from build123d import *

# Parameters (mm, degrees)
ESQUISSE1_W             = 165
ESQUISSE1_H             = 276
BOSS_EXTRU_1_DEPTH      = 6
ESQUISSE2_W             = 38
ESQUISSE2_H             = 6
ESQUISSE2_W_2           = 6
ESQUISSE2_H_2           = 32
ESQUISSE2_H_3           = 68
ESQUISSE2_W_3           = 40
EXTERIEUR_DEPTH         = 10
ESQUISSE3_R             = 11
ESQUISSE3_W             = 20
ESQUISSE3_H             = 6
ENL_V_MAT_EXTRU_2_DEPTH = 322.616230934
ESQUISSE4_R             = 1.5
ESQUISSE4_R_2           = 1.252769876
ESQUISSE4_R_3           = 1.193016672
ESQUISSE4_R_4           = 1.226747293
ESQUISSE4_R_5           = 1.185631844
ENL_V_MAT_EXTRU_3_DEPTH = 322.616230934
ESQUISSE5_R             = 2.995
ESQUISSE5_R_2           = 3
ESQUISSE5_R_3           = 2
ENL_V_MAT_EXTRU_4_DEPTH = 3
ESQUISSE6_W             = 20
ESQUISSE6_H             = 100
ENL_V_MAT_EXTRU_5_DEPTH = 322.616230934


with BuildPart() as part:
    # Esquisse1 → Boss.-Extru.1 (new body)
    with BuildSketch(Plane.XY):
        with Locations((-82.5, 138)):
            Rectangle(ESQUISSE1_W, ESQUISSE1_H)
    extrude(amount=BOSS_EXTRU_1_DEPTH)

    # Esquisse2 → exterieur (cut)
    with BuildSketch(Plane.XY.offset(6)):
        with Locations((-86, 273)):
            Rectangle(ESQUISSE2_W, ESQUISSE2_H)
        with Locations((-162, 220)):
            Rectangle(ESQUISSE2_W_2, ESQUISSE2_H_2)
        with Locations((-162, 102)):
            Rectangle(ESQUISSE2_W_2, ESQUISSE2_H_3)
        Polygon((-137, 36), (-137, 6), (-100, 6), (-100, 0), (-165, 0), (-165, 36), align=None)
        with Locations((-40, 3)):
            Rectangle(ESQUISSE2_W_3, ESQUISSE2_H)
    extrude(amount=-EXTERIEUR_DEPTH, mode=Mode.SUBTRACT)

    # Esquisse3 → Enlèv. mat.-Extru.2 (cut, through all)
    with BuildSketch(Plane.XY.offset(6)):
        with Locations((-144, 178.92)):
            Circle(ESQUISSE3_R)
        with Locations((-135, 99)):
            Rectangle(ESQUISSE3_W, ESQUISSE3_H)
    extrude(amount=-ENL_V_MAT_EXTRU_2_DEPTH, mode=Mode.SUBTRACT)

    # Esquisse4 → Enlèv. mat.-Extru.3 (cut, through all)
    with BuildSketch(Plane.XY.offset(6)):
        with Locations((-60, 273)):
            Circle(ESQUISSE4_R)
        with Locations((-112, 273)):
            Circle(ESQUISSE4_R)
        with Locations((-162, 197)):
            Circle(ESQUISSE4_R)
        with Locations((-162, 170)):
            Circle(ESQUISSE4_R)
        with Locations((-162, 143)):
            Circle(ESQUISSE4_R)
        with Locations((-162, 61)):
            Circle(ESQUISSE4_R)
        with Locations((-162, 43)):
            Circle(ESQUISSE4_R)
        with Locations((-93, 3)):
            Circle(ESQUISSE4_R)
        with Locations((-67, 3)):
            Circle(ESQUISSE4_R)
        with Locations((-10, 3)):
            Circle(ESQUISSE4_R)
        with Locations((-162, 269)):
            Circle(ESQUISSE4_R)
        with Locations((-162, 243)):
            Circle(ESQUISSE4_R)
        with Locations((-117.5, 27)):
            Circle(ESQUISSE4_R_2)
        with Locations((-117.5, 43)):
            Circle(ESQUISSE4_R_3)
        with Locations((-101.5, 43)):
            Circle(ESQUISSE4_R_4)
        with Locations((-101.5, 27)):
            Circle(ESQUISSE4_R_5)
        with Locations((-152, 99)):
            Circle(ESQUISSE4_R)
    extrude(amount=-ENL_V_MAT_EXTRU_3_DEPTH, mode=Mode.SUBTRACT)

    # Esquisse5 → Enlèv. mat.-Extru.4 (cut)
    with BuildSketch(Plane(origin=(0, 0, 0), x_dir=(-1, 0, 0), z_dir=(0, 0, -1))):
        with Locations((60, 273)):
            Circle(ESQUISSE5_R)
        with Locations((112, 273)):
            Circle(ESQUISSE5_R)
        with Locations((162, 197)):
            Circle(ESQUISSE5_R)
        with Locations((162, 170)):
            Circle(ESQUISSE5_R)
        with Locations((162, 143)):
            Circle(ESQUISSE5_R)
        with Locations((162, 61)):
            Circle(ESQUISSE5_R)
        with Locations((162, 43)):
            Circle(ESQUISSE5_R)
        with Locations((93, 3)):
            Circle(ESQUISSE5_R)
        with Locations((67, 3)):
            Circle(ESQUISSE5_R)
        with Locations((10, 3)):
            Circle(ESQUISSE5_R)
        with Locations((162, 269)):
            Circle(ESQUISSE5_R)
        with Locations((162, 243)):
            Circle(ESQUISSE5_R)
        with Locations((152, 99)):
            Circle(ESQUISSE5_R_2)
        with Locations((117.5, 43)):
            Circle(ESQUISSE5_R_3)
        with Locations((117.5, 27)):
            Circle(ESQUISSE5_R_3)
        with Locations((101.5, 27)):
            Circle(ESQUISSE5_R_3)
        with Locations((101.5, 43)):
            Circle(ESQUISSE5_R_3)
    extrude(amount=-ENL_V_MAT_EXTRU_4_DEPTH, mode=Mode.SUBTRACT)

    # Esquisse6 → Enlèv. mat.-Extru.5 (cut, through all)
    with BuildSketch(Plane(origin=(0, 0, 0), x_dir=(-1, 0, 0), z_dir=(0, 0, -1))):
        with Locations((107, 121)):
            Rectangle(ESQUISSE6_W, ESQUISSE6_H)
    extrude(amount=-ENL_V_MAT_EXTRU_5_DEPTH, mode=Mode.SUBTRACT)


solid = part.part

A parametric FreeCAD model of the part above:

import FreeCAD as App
import Part
import Sketcher

V = App.Vector

doc = App.newDocument("Part")
params = doc.addObject("Spreadsheet::Sheet", "Params")
for row, (alias, value) in enumerate([
    ("sketch1_width", "165 mm"),
    ("sketch1_height", "276 mm"),
    ("pad1_length", "6 mm"),
    ("sketch2_width", "38 mm"),
    ("sketch2_width2", "6 mm"),
    ("sketch2_width3", "28 mm"),
    ("sketch2_width4", "65 mm"),
    ("sketch2_width5", "40 mm"),
    ("pocket1_length", "10 mm"),
    ("sketch3_diameter", "22 mm"),
    ("sketch3_width", "20 mm"),
    ("sketch3_height", "6 mm"),
    ("sketch4_diameter", "3 mm"),
    ("sketch5_diameter", "6 mm"),
    ("sketch5_diameter2", "4 mm"),
    ("sketch5_diameter3", "5.99 mm"),
    ("pocket4_length", "3 mm"),
    ("sketch6_width", "20 mm"),
    ("sketch6_height", "100 mm"),
], start=1):
    params.set(f"A{row}", alias)
    params.set(f"B{row}", "=" + value)
    params.setAlias(f"B{row}", alias)

body = doc.addObject("PartDesign::Body", "Body")

sketch1 = body.newObject("Sketcher::SketchObject", "Sketch")
sketch1.AttachmentSupport = (doc.getObject("XY_Plane"), [""])
sketch1.MapMode = "FlatFace"
sketch1.addGeometry([
    Part.LineSegment(V(-165, 276, 0), V(-165, 0, 0)),
    Part.LineSegment(V(-165, 0, 0), V(0, 0, 0)),
    Part.LineSegment(V(0, 0, 0), V(0, 276, 0)),
    Part.LineSegment(V(0, 276, 0), V(-165, 276, 0)),
], False)
sketch1.addConstraint([
    Sketcher.Constraint("Coincident", 0, 2, 1, 1),
    Sketcher.Constraint("Coincident", 1, 2, 2, 1),
    Sketcher.Constraint("Coincident", 2, 2, 3, 1),
    Sketcher.Constraint("Coincident", 3, 2, 0, 1),
    Sketcher.Constraint("Vertical", 0),
    Sketcher.Constraint("Horizontal", 1),
    Sketcher.Constraint("Vertical", 2),
    Sketcher.Constraint("Horizontal", 3),
    Sketcher.Constraint("Coincident", 1, 2, -1, 1),
    Sketcher.Constraint("DistanceX", 1, 1, 1, 2, 165.0),
    Sketcher.Constraint("DistanceY", 0, 2, 0, 1, 276.0),
])
sketch1.setExpression("Constraints[9]", "Params.sketch1_width")
sketch1.setExpression("Constraints[10]", "Params.sketch1_height")
pad1 = body.newObject("PartDesign::Pad", "Pad")
pad1.Profile = sketch1
pad1.setExpression("Length", "Params.pad1_length")

sketch2 = body.newObject("Sketcher::SketchObject", "Sketch001")
sketch2.AttachmentSupport = (doc.getObject("XY_Plane"), [""])
sketch2.MapMode = "FlatFace"
sketch2.AttachmentOffset = App.Placement(V(0, 0, 6), App.Rotation())
sketch2.addGeometry([
    Part.LineSegment(V(-105, 276, 0), V(-105, 270, 0)),
    Part.LineSegment(V(-105, 270, 0), V(-67, 270, 0)),
    Part.LineSegment(V(-67, 270, 0), V(-67, 276, 0)),
    Part.LineSegment(V(-67, 276, 0), V(-105, 276, 0)),
    Part.LineSegment(V(-165, 236, 0), V(-165, 204, 0)),
    Part.LineSegment(V(-165, 204, 0), V(-159, 204, 0)),
    Part.LineSegment(V(-159, 204, 0), V(-159, 236, 0)),
    Part.LineSegment(V(-159, 236, 0), V(-165, 236, 0)),
    Part.LineSegment(V(-165, 136, 0), V(-165, 68, 0)),
    Part.LineSegment(V(-165, 68, 0), V(-159, 68, 0)),
    Part.LineSegment(V(-159, 68, 0), V(-159, 136, 0)),
    Part.LineSegment(V(-159, 136, 0), V(-165, 136, 0)),
    Part.LineSegment(V(-137, 6, 0), V(-137, 36, 0)),
    Part.LineSegment(V(-137, 36, 0), V(-165, 36, 0)),
    Part.LineSegment(V(-165, 36, 0), V(-165, 0, 0)),
    Part.LineSegment(V(-165, 0, 0), V(-100, 0, 0)),
    Part.LineSegment(V(-100, 0, 0), V(-100, 6, 0)),
    Part.LineSegment(V(-100, 6, 0), V(-137, 6, 0)),
    Part.LineSegment(V(-60, 6, 0), V(-60, 0, 0)),
    Part.LineSegment(V(-60, 0, 0), V(-20, 0, 0)),
    Part.LineSegment(V(-20, 0, 0), V(-20, 6, 0)),
    Part.LineSegment(V(-20, 6, 0), V(-60, 6, 0)),
], False)
sketch2.addConstraint([
    Sketcher.Constraint("Coincident", 0, 2, 1, 1),
    Sketcher.Constraint("Coincident", 1, 2, 2, 1),
    Sketcher.Constraint("Coincident", 2, 2, 3, 1),
    Sketcher.Constraint("Coincident", 3, 2, 0, 1),
    Sketcher.Constraint("Coincident", 4, 2, 5, 1),
    Sketcher.Constraint("Coincident", 5, 2, 6, 1),
    Sketcher.Constraint("Coincident", 6, 2, 7, 1),
    Sketcher.Constraint("Coincident", 7, 2, 4, 1),
    Sketcher.Constraint("Coincident", 8, 2, 9, 1),
    Sketcher.Constraint("Coincident", 9, 2, 10, 1),
    Sketcher.Constraint("Coincident", 10, 2, 11, 1),
    Sketcher.Constraint("Coincident", 11, 2, 8, 1),
    Sketcher.Constraint("Coincident", 12, 2, 13, 1),
    Sketcher.Constraint("Coincident", 13, 2, 14, 1),
    Sketcher.Constraint("Coincident", 14, 2, 15, 1),
    Sketcher.Constraint("Coincident", 15, 2, 16, 1),
    Sketcher.Constraint("Coincident", 16, 2, 17, 1),
    Sketcher.Constraint("Coincident", 17, 2, 12, 1),
    Sketcher.Constraint("Coincident", 18, 2, 19, 1),
    Sketcher.Constraint("Coincident", 19, 2, 20, 1),
    Sketcher.Constraint("Coincident", 20, 2, 21, 1),
    Sketcher.Constraint("Coincident", 21, 2, 18, 1),
    Sketcher.Constraint("Vertical", 0),
    Sketcher.Constraint("Horizontal", 1),
    Sketcher.Constraint("Vertical", 2),
    Sketcher.Constraint("Horizontal", 3),
    Sketcher.Constraint("Vertical", 4),
    Sketcher.Constraint("Horizontal", 5),
    Sketcher.Constraint("Vertical", 6),
    Sketcher.Constraint("Horizontal", 7),
    Sketcher.Constraint("Vertical", 8),
    Sketcher.Constraint("Horizontal", 9),
    Sketcher.Constraint("Vertical", 10),
    Sketcher.Constraint("Horizontal", 11),
    Sketcher.Constraint("Vertical", 12),
    Sketcher.Constraint("Horizontal", 13),
    Sketcher.Constraint("Vertical", 14),
    Sketcher.Constraint("Horizontal", 15),
    Sketcher.Constraint("Vertical", 16),
    Sketcher.Constraint("Horizontal", 17),
    Sketcher.Constraint("Vertical", 18),
    Sketcher.Constraint("Horizontal", 19),
    Sketcher.Constraint("Vertical", 20),
    Sketcher.Constraint("Horizontal", 21),
    Sketcher.Constraint("PointOnObject", 14, 2, -1),
    Sketcher.Constraint("PointOnObject", 18, 2, -1),
    Sketcher.Constraint("Horizontal", 17, 2, 20, 2),
    Sketcher.Constraint("Vertical", 7, 2, 8, 2),
    Sketcher.Constraint("Vertical", 6, 2, 9, 2),
    Sketcher.Constraint("Vertical", 11, 2, 13, 2),
    Sketcher.Constraint("Equal", 11, 0),
    Sketcher.Constraint("Equal", 2, 16),
    Sketcher.Constraint("DistanceX", 1, 1, 1, 2, 38.0),
    Sketcher.Constraint("DistanceX", 5, 1, 5, 2, 6.0),
    Sketcher.Constraint("DistanceX", 13, 2, 13, 1, 28.0),
    Sketcher.Constraint("DistanceX", 15, 1, 15, 2, 65.0),
    Sketcher.Constraint("DistanceX", 19, 1, 19, 2, 40.0),
    Sketcher.Constraint("DistanceY", 4, 2, 4, 1, 32.0),
    Sketcher.Constraint("DistanceY", 8, 2, 8, 1, 68.0),
    Sketcher.Constraint("DistanceY", 12, 1, 12, 2, 30.0),
    Sketcher.Constraint("DistanceX", 0, 2, -1, 1, 105.0),
    Sketcher.Constraint("DistanceY", -1, 1, 0, 2, 270.0),
    Sketcher.Constraint("DistanceX", 4, 2, -1, 1, 165.0),
    Sketcher.Constraint("DistanceY", -1, 1, 4, 2, 204.0),
    Sketcher.Constraint("DistanceY", -1, 1, 8, 2, 68.0),
    Sketcher.Constraint("DistanceX", 18, 2, -1, 1, 60.0),
])
sketch2.setExpression("Constraints[52]", "Params.sketch2_width")
sketch2.setExpression("Constraints[53]", "Params.sketch2_width2")
sketch2.setExpression("Constraints[54]", "Params.sketch2_width3")
sketch2.setExpression("Constraints[55]", "Params.sketch2_width4")
sketch2.setExpression("Constraints[56]", "Params.sketch2_width5")
pocket1 = body.newObject("PartDesign::Pocket", "Pocket")
pocket1.Profile = sketch2
pocket1.setExpression("Length", "Params.pocket1_length")

sketch3 = body.newObject("Sketcher::SketchObject", "Sketch002")
sketch3.AttachmentSupport = (doc.getObject("XY_Plane"), [""])
sketch3.MapMode = "FlatFace"
sketch3.AttachmentOffset = App.Placement(V(0, 0, 6), App.Rotation())
sketch3.addGeometry([
    Part.Circle(V(-144, 179, 0), V(0, 0, 1), 11),
    Part.LineSegment(V(-145, 102, 0), V(-145, 96, 0)),
    Part.LineSegment(V(-145, 96, 0), V(-125, 96, 0)),
    Part.LineSegment(V(-125, 96, 0), V(-125, 102, 0)),
    Part.LineSegment(V(-125, 102, 0), V(-145, 102, 0)),
], False)
sketch3.addConstraint([
    Sketcher.Constraint("Coincident", 1, 2, 2, 1),
    Sketcher.Constraint("Coincident", 2, 2, 3, 1),
    Sketcher.Constraint("Coincident", 3, 2, 4, 1),
    Sketcher.Constraint("Coincident", 4, 2, 1, 1),
    Sketcher.Constraint("Vertical", 1),
    Sketcher.Constraint("Horizontal", 2),
    Sketcher.Constraint("Vertical", 3),
    Sketcher.Constraint("Horizontal", 4),
    Sketcher.Constraint("Diameter", 0, 22.0),
    Sketcher.Constraint("DistanceX", 2, 1, 2, 2, 20.0),
    Sketcher.Constraint("DistanceY", 1, 2, 1, 1, 6.0),
    Sketcher.Constraint("DistanceX", 0, 3, -1, 1, 144.0),
    Sketcher.Constraint("DistanceX", 1, 2, -1, 1, 145.0),
    Sketcher.Constraint("DistanceY", -1, 1, 1, 2, 96.0),
    Sketcher.Constraint("DistanceY", -1, 1, 0, 3, 178.92),
])
sketch3.setExpression("Constraints[8]", "Params.sketch3_diameter")
sketch3.setExpression("Constraints[9]", "Params.sketch3_width")
sketch3.setExpression("Constraints[10]", "Params.sketch3_height")
pocket2 = body.newObject("PartDesign::Pocket", "Pocket001")
pocket2.Profile = sketch3
pocket2.Type = "ThroughAll"

sketch4 = body.newObject("Sketcher::SketchObject", "Sketch003")
sketch4.AttachmentSupport = (doc.getObject("XY_Plane"), [""])
sketch4.MapMode = "FlatFace"
sketch4.AttachmentOffset = App.Placement(V(0, 0, 6), App.Rotation())
sketch4.addGeometry([
    Part.Circle(V(-60, 273, 0), V(0, 0, 1), 1.5),
    Part.Circle(V(-112, 273, 0), V(0, 0, 1), 1.5),
    Part.Circle(V(-162, 197, 0), V(0, 0, 1), 1.5),
    Part.Circle(V(-162, 170, 0), V(0, 0, 1), 1.5),
    Part.Circle(V(-162, 143, 0), V(0, 0, 1), 1.5),
    Part.Circle(V(-162, 61, 0), V(0, 0, 1), 1.5),
    Part.Circle(V(-162, 43, 0), V(0, 0, 1), 1.5),
    Part.Circle(V(-93, 3, 0), V(0, 0, 1), 1.5),
    Part.Circle(V(-67, 3, 0), V(0, 0, 1), 1.5),
    Part.Circle(V(-10, 3, 0), V(0, 0, 1), 1.5),
    Part.Circle(V(-162, 269, 0), V(0, 0, 1), 1.5),
    Part.Circle(V(-162, 243, 0), V(0, 0, 1), 1.5),
    Part.Circle(V(-117.5, 27, 0), V(0, 0, 1), 1.3),
    Part.Circle(V(-117.5, 43, 0), V(0, 0, 1), 1.2),
    Part.Circle(V(-101.5, 43, 0), V(0, 0, 1), 1.2),
    Part.Circle(V(-101.5, 27, 0), V(0, 0, 1), 1.2),
    Part.Circle(V(-152, 99, 0), V(0, 0, 1), 1.5),
], False)
sketch4.addConstraint([
    Sketcher.Constraint("Equal", 0, 1),
    Sketcher.Constraint("Equal", 1, 2),
    Sketcher.Constraint("Equal", 2, 3),
    Sketcher.Constraint("Equal", 3, 4),
    Sketcher.Constraint("Equal", 4, 5),
    Sketcher.Constraint("Equal", 5, 6),
    Sketcher.Constraint("Equal", 6, 7),
    Sketcher.Constraint("Equal", 7, 8),
    Sketcher.Constraint("Equal", 8, 9),
    Sketcher.Constraint("Equal", 9, 10),
    Sketcher.Constraint("Equal", 10, 11),
    Sketcher.Constraint("Equal", 11, 16),
    Sketcher.Constraint("Horizontal", 0, 3, 1, 3),
    Sketcher.Constraint("Horizontal", 7, 3, 8, 3),
    Sketcher.Constraint("Horizontal", 8, 3, 9, 3),
    Sketcher.Constraint("Horizontal", 6, 3, 13, 3),
    Sketcher.Constraint("Horizontal", 13, 3, 14, 3),
    Sketcher.Constraint("Horizontal", 12, 3, 15, 3),
    Sketcher.Constraint("Vertical", 2, 3, 3, 3),
    Sketcher.Constraint("Vertical", 3, 3, 4, 3),
    Sketcher.Constraint("Vertical", 4, 3, 5, 3),
    Sketcher.Constraint("Vertical", 5, 3, 6, 3),
    Sketcher.Constraint("Vertical", 6, 3, 10, 3),
    Sketcher.Constraint("Vertical", 10, 3, 11, 3),
    Sketcher.Constraint("Vertical", 12, 3, 13, 3),
    Sketcher.Constraint("Vertical", 14, 3, 15, 3),
    Sketcher.Constraint("Diameter", 0, 3.0),
    Sketcher.Constraint("DistanceX", 0, 3, -1, 1, 60.0),
    Sketcher.Constraint("DistanceY", -1, 1, 0, 3, 273.0),
    Sketcher.Constraint("DistanceX", 1, 3, -1, 1, 112.0),
    Sketcher.Constraint("DistanceX", 2, 3, -1, 1, 162.0),
    Sketcher.Constraint("DistanceY", -1, 1, 2, 3, 197.0),
    Sketcher.Constraint("DistanceY", -1, 1, 3, 3, 170.0),
    Sketcher.Constraint("DistanceY", -1, 1, 4, 3, 143.0),
    Sketcher.Constraint("DistanceY", -1, 1, 5, 3, 61.0),
    Sketcher.Constraint("DistanceY", -1, 1, 6, 3, 43.0),
    Sketcher.Constraint("DistanceX", 7, 3, -1, 1, 93.0),
    Sketcher.Constraint("DistanceY", -1, 1, 7, 3, 3.0),
    Sketcher.Constraint("DistanceX", 8, 3, -1, 1, 67.0),
    Sketcher.Constraint("DistanceX", 9, 3, -1, 1, 10.0),
    Sketcher.Constraint("DistanceY", -1, 1, 10, 3, 269.0),
    Sketcher.Constraint("DistanceY", -1, 1, 11, 3, 243.0),
    Sketcher.Constraint("DistanceY", -1, 1, 12, 3, 27.0),
    Sketcher.Constraint("DistanceX", 16, 3, -1, 1, 152.0),
    Sketcher.Constraint("DistanceY", -1, 1, 16, 3, 99.0),
    Sketcher.Constraint("DistanceX", 13, 3, 14, 3, 16.0),
    Sketcher.Constraint("DistanceX", 12, 3, -1, 1, 117.5),
    Sketcher.Constraint("Diameter", 12, 2.50554),
    Sketcher.Constraint("Diameter", 13, 2.386033),
    Sketcher.Constraint("Diameter", 14, 2.453495),
    Sketcher.Constraint("Diameter", 15, 2.371264),
])
sketch4.setExpression("Constraints[26]", "Params.sketch4_diameter")
pocket3 = body.newObject("PartDesign::Pocket", "Pocket002")
pocket3.Profile = sketch4
pocket3.Type = "ThroughAll"

sketch5 = body.newObject("Sketcher::SketchObject", "Sketch004")
sketch5.AttachmentSupport = (doc.getObject("XY_Plane"), [""])
sketch5.MapMode = "FlatFace"
sketch5.addGeometry([
    Part.Circle(V(-60, 273, 0), V(0, 0, 1), 3),
    Part.Circle(V(-112, 273, 0), V(0, 0, 1), 3),
    Part.Circle(V(-162, 197, 0), V(0, 0, 1), 3),
    Part.Circle(V(-162, 170, 0), V(0, 0, 1), 3),
    Part.Circle(V(-162, 143, 0), V(0, 0, 1), 3),
    Part.Circle(V(-162, 61, 0), V(0, 0, 1), 3),
    Part.Circle(V(-162, 43, 0), V(0, 0, 1), 3),
    Part.Circle(V(-93, 3, 0), V(0, 0, 1), 3),
    Part.Circle(V(-67, 3, 0), V(0, 0, 1), 3),
    Part.Circle(V(-10, 3, 0), V(0, 0, 1), 3),
    Part.Circle(V(-162, 269, 0), V(0, 0, 1), 3),
    Part.Circle(V(-162, 243, 0), V(0, 0, 1), 3),
    Part.Circle(V(-152, 99, 0), V(0, 0, 1), 3),
    Part.Circle(V(-117.5, 43, 0), V(0, 0, 1), 2),
    Part.Circle(V(-117.5, 27, 0), V(0, 0, 1), 2),
    Part.Circle(V(-101.5, 27, 0), V(0, 0, 1), 2),
    Part.Circle(V(-101.5, 43, 0), V(0, 0, 1), 2),
], False)
sketch5.addConstraint([
    Sketcher.Constraint("Equal", 0, 1),
    Sketcher.Constraint("Equal", 1, 2),
    Sketcher.Constraint("Equal", 2, 3),
    Sketcher.Constraint("Equal", 3, 4),
    Sketcher.Constraint("Equal", 4, 5),
    Sketcher.Constraint("Equal", 5, 6),
    Sketcher.Constraint("Equal", 6, 7),
    Sketcher.Constraint("Equal", 7, 8),
    Sketcher.Constraint("Equal", 8, 9),
    Sketcher.Constraint("Equal", 9, 10),
    Sketcher.Constraint("Equal", 10, 11),
    Sketcher.Constraint("Equal", 13, 14),
    Sketcher.Constraint("Equal", 14, 15),
    Sketcher.Constraint("Equal", 15, 16),
    Sketcher.Constraint("Horizontal", 0, 3, 1, 3),
    Sketcher.Constraint("Horizontal", 7, 3, 8, 3),
    Sketcher.Constraint("Horizontal", 8, 3, 9, 3),
    Sketcher.Constraint("Horizontal", 6, 3, 13, 3),
    Sketcher.Constraint("Horizontal", 14, 3, 15, 3),
    Sketcher.Constraint("Horizontal", 13, 3, 16, 3),
    Sketcher.Constraint("Vertical", 2, 3, 3, 3),
    Sketcher.Constraint("Vertical", 3, 3, 4, 3),
    Sketcher.Constraint("Vertical", 4, 3, 5, 3),
    Sketcher.Constraint("Vertical", 5, 3, 6, 3),
    Sketcher.Constraint("Vertical", 6, 3, 10, 3),
    Sketcher.Constraint("Vertical", 10, 3, 11, 3),
    Sketcher.Constraint("Vertical", 13, 3, 14, 3),
    Sketcher.Constraint("Vertical", 15, 3, 16, 3),
    Sketcher.Constraint("Diameter", 12, 6.0),
    Sketcher.Constraint("Diameter", 13, 4.0),
    Sketcher.Constraint("Diameter", 0, 5.99),
    Sketcher.Constraint("DistanceX", 0, 3, -1, 1, 60.0),
    Sketcher.Constraint("DistanceY", -1, 1, 0, 3, 273.0),
    Sketcher.Constraint("DistanceX", 1, 3, -1, 1, 112.0),
    Sketcher.Constraint("DistanceX", 2, 3, -1, 1, 162.0),
    Sketcher.Constraint("DistanceY", -1, 1, 2, 3, 197.0),
    Sketcher.Constraint("DistanceY", -1, 1, 3, 3, 170.0),
    Sketcher.Constraint("DistanceY", -1, 1, 4, 3, 143.0),
    Sketcher.Constraint("DistanceY", -1, 1, 5, 3, 61.0),
    Sketcher.Constraint("DistanceY", -1, 1, 6, 3, 43.0),
    Sketcher.Constraint("DistanceX", 7, 3, -1, 1, 93.0),
    Sketcher.Constraint("DistanceY", -1, 1, 7, 3, 3.0),
    Sketcher.Constraint("DistanceX", 8, 3, -1, 1, 67.0),
    Sketcher.Constraint("DistanceX", 9, 3, -1, 1, 10.0),
    Sketcher.Constraint("DistanceY", -1, 1, 10, 3, 269.0),
    Sketcher.Constraint("DistanceY", -1, 1, 11, 3, 243.0),
    Sketcher.Constraint("DistanceX", 12, 3, -1, 1, 152.0),
    Sketcher.Constraint("DistanceY", -1, 1, 12, 3, 99.0),
    Sketcher.Constraint("DistanceY", -1, 1, 14, 3, 27.0),
    Sketcher.Constraint("DistanceX", 14, 3, 15, 3, 16.0),
    Sketcher.Constraint("DistanceX", 13, 3, -1, 1, 117.5),
])
sketch5.setExpression("Constraints[28]", "Params.sketch5_diameter")
sketch5.setExpression("Constraints[29]", "Params.sketch5_diameter2")
sketch5.setExpression("Constraints[30]", "Params.sketch5_diameter3")
pocket4 = body.newObject("PartDesign::Pocket", "Pocket003")
pocket4.Profile = sketch5
pocket4.setExpression("Length", "Params.pocket4_length")
pocket4.Reversed = True

sketch6 = body.newObject("Sketcher::SketchObject", "Sketch005")
sketch6.AttachmentSupport = (doc.getObject("XY_Plane"), [""])
sketch6.MapMode = "FlatFace"
sketch6.addGeometry([
    Part.LineSegment(V(-97, 171, 0), V(-97, 71, 0)),
    Part.LineSegment(V(-97, 71, 0), V(-117, 71, 0)),
    Part.LineSegment(V(-117, 71, 0), V(-117, 171, 0)),
    Part.LineSegment(V(-117, 171, 0), V(-97, 171, 0)),
], False)
sketch6.addConstraint([
    Sketcher.Constraint("Coincident", 0, 2, 1, 1),
    Sketcher.Constraint("Coincident", 1, 2, 2, 1),
    Sketcher.Constraint("Coincident", 2, 2, 3, 1),
    Sketcher.Constraint("Coincident", 3, 2, 0, 1),
    Sketcher.Constraint("Vertical", 0),
    Sketcher.Constraint("Horizontal", 1),
    Sketcher.Constraint("Vertical", 2),
    Sketcher.Constraint("Horizontal", 3),
    Sketcher.Constraint("DistanceX", 1, 2, 1, 1, 20.0),
    Sketcher.Constraint("DistanceY", 0, 2, 0, 1, 100.0),
    Sketcher.Constraint("DistanceX", 0, 2, -1, 1, 97.0),
    Sketcher.Constraint("DistanceY", -1, 1, 0, 2, 71.0),
])
sketch6.setExpression("Constraints[8]", "Params.sketch6_width")
sketch6.setExpression("Constraints[9]", "Params.sketch6_height")
pocket5 = body.newObject("PartDesign::Pocket", "Pocket004")
pocket5.Profile = sketch6
pocket5.Type = "ThroughAll"
pocket5.Reversed = True

doc.recompute()
